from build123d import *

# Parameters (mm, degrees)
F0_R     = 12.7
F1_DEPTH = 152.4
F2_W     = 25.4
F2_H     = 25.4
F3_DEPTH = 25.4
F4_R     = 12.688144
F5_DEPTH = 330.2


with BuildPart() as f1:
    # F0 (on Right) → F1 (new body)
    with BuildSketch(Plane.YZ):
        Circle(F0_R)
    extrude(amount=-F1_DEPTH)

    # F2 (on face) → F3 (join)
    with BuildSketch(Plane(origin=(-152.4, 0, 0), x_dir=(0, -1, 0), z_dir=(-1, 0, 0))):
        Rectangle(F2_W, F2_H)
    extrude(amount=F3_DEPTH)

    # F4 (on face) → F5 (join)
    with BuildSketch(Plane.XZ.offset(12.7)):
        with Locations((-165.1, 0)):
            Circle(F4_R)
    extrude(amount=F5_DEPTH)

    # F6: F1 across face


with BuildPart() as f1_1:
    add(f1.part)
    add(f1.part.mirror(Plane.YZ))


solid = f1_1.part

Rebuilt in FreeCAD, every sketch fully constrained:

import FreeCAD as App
import Part
import Sketcher

V = App.Vector
Q = App.Units.Quantity

doc = App.newDocument("Part")
body = doc.addObject("PartDesign::Body", "Body")

sketch1 = body.newObject("Sketcher::SketchObject", "Sketch")
sketch1.AttachmentSupport = (doc.getObject("YZ_Plane"), [""])
sketch1.MapMode = "FlatFace"
sketch1.addGeometry(Part.Circle(V(0, 0, 0), V(0, 0, 1), 13), False)
sketch1.addConstraint([
    Sketcher.Constraint("Coincident", 0, 3, -1, 1),
    Sketcher.Constraint("Diameter", 0, Q("1 in")),
])
pad1 = body.newObject("PartDesign::Pad", "Pad")
pad1.Profile = sketch1
pad1.Length = Q("6 in")
pad1.Reversed = True

sketch2 = body.newObject("Sketcher::SketchObject", "Sketch001")
sketch2.AttachmentSupport = (doc.getObject("YZ_Plane"), [""])
sketch2.MapMode = "FlatFace"
sketch2.AttachmentOffset = App.Placement(V(0, 0, -6 * 25.4), App.Rotation())
sketch2.addGeometry([
    Part.LineSegment(V(13, 13, 0), V(13, -13, 0)),
    Part.LineSegment(V(13, -13, 0), V(-13, -13, 0)),
    Part.LineSegment(V(-13, -13, 0), V(-13, 13, 0)),
    Part.LineSegment(V(-13, 13, 0), V(13, 13, 0)),
], False)
sketch2.addConstraint([
    Sketcher.Constraint("Coincident", 0, 2, 1, 1),
    Sketcher.Constraint("Coincident", 1, 2, 2, 1),
    Sketcher.Constraint("Coincident", 2, 2, 3, 1),
    Sketcher.Constraint("Coincident", 3, 2, 0, 1),
    Sketcher.Constraint("Vertical", 0),
    Sketcher.Constraint("Horizontal", 1),
    Sketcher.Constraint("Vertical", 2),
    Sketcher.Constraint("Horizontal", 3),
    Sketcher.Constraint("Symmetric", 0, 2, 2, 2, -1, 1),
    Sketcher.Constraint("Equal", 3, 0),
    Sketcher.Constraint("DistanceX", 1, 2, 1, 1, Q("1 in")),
])
pad2 = body.newObject("PartDesign::Pad", "Pad001")
pad2.Profile = sketch2
pad2.Length = Q("1 in")
pad2.Reversed = True

sketch3 = body.newObject("Sketcher::SketchObject", "Sketch002")
sketch3.AttachmentSupport = (doc.getObject("XZ_Plane"), [""])
sketch3.MapMode = "FlatFace"
sketch3.AttachmentOffset = App.Placement(V(0, 0, 0.5 * 25.4), App.Rotation())
sketch3.addGeometry(Part.Circle(V(-165, 0, 0), V(0, 0, 1), 13), False)
sketch3.addConstraint([
    Sketcher.Constraint("PointOnObject", 0, 3, -1),
    Sketcher.Constraint("DistanceX", 0, 3, -1, 1, Q("6.5 in")),
    Sketcher.Constraint("Diameter", 0, 25.376288),
])
pad3 = body.newObject("PartDesign::Pad", "Pad002")
pad3.Profile = sketch3
pad3.Length = Q("13 in")
body2 = doc.addObject("PartDesign::Body", "Body001")
doc.recompute()

body2.BaseFeature = body
doc.recompute()

mirroring = doc.addObject("Part::Mirroring", "Mirroring")
mirroring.Source = body
mirroring.Base = V(0, 0, 0)
mirroring.Normal = V(1, 0, 0)
body3 = doc.addObject("PartDesign::Body", "Body002")
body3.BaseFeature = mirroring
boolean = body2.newObject("PartDesign::Boolean", "Boolean")
boolean.Type = "Fuse"
boolean.addObjects([body3])
doc.recompute()
mirroring.Visibility = False

doc.recompute()
